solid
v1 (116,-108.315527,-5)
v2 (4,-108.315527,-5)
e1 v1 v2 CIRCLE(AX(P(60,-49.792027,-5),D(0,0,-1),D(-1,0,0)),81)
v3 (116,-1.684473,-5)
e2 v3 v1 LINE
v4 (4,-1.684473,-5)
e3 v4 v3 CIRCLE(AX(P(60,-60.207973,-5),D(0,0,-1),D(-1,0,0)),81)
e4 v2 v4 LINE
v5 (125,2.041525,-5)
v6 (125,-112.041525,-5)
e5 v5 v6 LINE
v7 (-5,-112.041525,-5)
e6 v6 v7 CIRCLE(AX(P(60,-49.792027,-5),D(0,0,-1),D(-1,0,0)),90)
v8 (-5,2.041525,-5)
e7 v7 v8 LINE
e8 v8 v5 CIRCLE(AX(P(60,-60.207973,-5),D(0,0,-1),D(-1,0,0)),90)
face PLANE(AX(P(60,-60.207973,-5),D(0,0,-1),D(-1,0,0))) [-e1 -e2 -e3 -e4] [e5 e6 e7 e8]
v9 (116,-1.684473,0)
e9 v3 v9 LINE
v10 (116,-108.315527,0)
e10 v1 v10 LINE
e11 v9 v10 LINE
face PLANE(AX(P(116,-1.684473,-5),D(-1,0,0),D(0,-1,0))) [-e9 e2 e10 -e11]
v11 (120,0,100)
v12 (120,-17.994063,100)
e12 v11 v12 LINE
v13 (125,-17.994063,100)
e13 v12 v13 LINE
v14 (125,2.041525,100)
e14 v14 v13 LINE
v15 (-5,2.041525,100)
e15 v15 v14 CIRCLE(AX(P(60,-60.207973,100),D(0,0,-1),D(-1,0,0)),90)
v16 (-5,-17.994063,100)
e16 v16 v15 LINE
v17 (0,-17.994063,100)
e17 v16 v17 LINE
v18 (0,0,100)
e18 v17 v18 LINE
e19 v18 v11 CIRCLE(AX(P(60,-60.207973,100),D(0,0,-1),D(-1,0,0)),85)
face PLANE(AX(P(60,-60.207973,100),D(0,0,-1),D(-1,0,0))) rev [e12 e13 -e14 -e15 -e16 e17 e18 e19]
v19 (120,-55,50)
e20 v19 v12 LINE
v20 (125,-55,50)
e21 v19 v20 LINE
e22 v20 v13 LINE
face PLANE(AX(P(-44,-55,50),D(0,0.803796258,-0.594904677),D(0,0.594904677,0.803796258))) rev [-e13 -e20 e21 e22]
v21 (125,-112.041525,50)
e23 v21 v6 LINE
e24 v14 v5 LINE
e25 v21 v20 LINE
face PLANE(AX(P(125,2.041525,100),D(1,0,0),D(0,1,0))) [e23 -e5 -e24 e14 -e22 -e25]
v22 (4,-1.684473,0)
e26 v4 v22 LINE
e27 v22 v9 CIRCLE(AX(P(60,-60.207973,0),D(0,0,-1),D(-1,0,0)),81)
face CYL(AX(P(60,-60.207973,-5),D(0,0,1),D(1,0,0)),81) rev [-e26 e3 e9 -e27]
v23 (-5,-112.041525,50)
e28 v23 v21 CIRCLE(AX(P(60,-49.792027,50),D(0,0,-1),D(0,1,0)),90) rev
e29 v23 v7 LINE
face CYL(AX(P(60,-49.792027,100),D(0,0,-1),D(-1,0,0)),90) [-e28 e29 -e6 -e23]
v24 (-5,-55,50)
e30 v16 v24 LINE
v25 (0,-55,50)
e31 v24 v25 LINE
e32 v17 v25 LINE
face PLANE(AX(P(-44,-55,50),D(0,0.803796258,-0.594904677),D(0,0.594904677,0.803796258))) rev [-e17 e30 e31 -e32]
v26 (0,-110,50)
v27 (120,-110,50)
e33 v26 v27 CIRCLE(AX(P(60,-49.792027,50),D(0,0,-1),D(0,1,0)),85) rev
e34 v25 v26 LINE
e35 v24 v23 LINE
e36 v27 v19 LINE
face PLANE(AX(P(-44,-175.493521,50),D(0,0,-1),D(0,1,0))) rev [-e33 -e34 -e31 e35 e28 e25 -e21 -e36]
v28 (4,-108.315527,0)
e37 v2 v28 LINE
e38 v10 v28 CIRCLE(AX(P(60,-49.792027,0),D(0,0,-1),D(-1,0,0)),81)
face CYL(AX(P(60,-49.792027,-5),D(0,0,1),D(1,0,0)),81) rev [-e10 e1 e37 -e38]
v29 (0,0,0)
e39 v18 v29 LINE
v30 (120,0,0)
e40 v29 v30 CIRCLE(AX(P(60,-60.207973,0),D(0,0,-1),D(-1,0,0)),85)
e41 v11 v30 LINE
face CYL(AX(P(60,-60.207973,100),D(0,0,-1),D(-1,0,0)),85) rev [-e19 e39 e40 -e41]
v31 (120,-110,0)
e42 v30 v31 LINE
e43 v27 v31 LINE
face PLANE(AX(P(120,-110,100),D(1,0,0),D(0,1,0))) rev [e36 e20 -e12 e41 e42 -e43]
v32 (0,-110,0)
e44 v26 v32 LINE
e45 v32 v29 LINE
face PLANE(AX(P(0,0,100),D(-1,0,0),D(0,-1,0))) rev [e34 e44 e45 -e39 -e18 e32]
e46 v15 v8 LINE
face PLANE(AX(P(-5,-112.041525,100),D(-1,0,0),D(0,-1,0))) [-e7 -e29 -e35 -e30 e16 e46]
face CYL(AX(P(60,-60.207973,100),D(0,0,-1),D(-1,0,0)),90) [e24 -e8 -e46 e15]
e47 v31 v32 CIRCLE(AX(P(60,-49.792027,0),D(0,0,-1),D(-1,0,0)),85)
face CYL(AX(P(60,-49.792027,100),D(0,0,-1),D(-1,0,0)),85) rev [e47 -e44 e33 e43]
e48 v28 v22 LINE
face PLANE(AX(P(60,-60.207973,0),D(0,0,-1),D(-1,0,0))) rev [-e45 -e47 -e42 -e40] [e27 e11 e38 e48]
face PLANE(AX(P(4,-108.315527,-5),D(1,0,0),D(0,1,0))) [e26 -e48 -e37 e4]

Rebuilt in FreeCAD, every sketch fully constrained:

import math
import FreeCAD as App
import Part
import Sketcher


def add_polygon(sketch, points):
    """Adds a closed chain of lines whose ends are joined by coincident constraints."""
    first, n = sketch.GeometryCount, len(points)
    for a, b in zip(points, points[1:] + points[:1]):
        sketch.addGeometry(Part.LineSegment(App.Vector(*a, 0), App.Vector(*b, 0)), False)
    for i in range(n):
        sketch.addConstraint(Sketcher.Constraint("Coincident", first + i, 2, first + (i + 1) % n, 1))

doc = App.newDocument("Part")
params = doc.addObject("Spreadsheet::Sheet", "Params")
for row, (alias, value) in enumerate([
    ("sketch1_radius", "85 mm"),
    ("sketch1_height", "110 mm"),
    ("sketch1_height2", "63.75 mm"),
    ("pad1_length", "50 mm"),
    ("sketch2_radius", "90 mm"),
    ("sketch2_radius2", "85 mm"),
    ("sketch2_height", "110 mm"),
    ("pad2_length", "100 mm"),
    ("sketch3_radius", "85 mm"),
    ("sketch3_height", "110 mm"),
    ("pocket1_length", "100 mm"),
    ("sketch4_height", "50 mm"),
    ("pocket2_length", "169 mm"),
    ("sketch5_radius", "90 mm"),
    ("sketch5_radius2", "81 mm"),
    ("pad3_length", "5 mm"),
], start=1):
    params.set(f"A{row}", alias)
    params.set(f"B{row}", "=" + value)
    params.setAlias(f"B{row}", alias)

body = doc.addObject("PartDesign::Body", "Body")

# Sketch on XY plane
sketch1 = doc.addObject("Sketcher::SketchObject", "Sketch")
body.addObject(sketch1)
sketch1.AttachmentSupport = (doc.XY_Plane, [""])
sketch1.MapMode = "FlatFace"
sketch1.addGeometry(Part.LineSegment(App.Vector(0, 0, 0), App.Vector(0, -110, 0)), False)  # 0
sketch1.addGeometry(Part.ArcOfCircle(Part.Circle(App.Vector(60, -49.792027, 0), App.Vector(0, 0, 1), 85), math.radians(-134.900872), math.radians(-45.099128)), False)  # 1
sketch1.addGeometry(Part.LineSegment(App.Vector(120, -110, 0), App.Vector(120, 0, 0)), False)  # 2
sketch1.addGeometry(Part.ArcOfCircle(Part.Circle(App.Vector(60, -60.207973, 0), App.Vector(0, 0, 1), 85), math.radians(45.099128), math.radians(134.900872)), False)  # 3
add_polygon(sketch1, [(107.8125, -86.875), (12.1875, -86.875), (12.1875, -23.125), (107.8125, -23.125)])  # lines 4-7
sketch1.addConstraint(Sketcher.Constraint("Coincident", 0, 2, 1, 1))
sketch1.addConstraint(Sketcher.Constraint("Coincident", 1, 2, 2, 1))
sketch1.addConstraint(Sketcher.Constraint("Coincident", 2, 2, 3, 1))
sketch1.addConstraint(Sketcher.Constraint("Coincident", 3, 2, 0, 1))
sketch1.addConstraint(Sketcher.Constraint("Vertical", 0))
sketch1.addConstraint(Sketcher.Constraint("Vertical", 2))
sketch1.addConstraint(Sketcher.Constraint("Horizontal", 4))
sketch1.addConstraint(Sketcher.Constraint("Vertical", 5))
sketch1.addConstraint(Sketcher.Constraint("Horizontal", 6))
sketch1.addConstraint(Sketcher.Constraint("Vertical", 7))
sketch1.addConstraint(Sketcher.Constraint("Coincident", 3, 2, -1, 1))
sketch1.addConstraint(Sketcher.Constraint("Equal", 1, 3))
sketch1.addConstraint(Sketcher.Constraint("PointOnObject", 2, 2, -1))
sketch1.addConstraint(Sketcher.Constraint("Horizontal", 0, 2, 1, 2))
sketch1.addConstraint(Sketcher.Constraint("Radius", 1, 85.0))
sketch1.addConstraint(Sketcher.Constraint("DistanceY", 0, 2, 0, 1, 110.0))
sketch1.addConstraint(Sketcher.Constraint("DistanceX", -1, 1, 1, 3, 60.0))
sketch1.addConstraint(Sketcher.Constraint("DistanceY", 5, 1, 5, 2, 63.75))
sketch1.addConstraint(Sketcher.Constraint("DistanceX", 4, 2, 4, 1, 95.625))
sketch1.addConstraint(Sketcher.Constraint("DistanceY", 4, 2, -1, 1, 86.875))
sketch1.addConstraint(Sketcher.Constraint("DistanceX", -1, 1, 4, 2, 12.1875))
sketch1.setExpression("Constraints[18]", "Params.sketch1_radius")
sketch1.setExpression("Constraints[19]", "Params.sketch1_height")
sketch1.setExpression("Constraints[21]", "Params.sketch1_height2")
pad1 = doc.addObject("PartDesign::Pad", "Pad")
body.addObject(pad1)
pad1.Profile = sketch1
pad1.setExpression("Length", "Params.pad1_length")

# Sketch on XY plane
sketch2 = doc.addObject("Sketcher::SketchObject", "Sketch001")
body.addObject(sketch2)
sketch2.AttachmentSupport = (doc.XY_Plane, [""])
sketch2.MapMode = "FlatFace"
sketch2.addGeometry(Part.LineSegment(App.Vector(125, 2.041525, 0), App.Vector(125, -112.041525, 0)), False)
sketch2.addGeometry(Part.ArcOfCircle(Part.Circle(App.Vector(60, -49.792027, 0), App.Vector(0, 0, 1), 90), math.radians(-136.238257), math.radians(-43.761743)), False)
sketch2.addGeometry(Part.LineSegment(App.Vector(-5, -112.041525, 0), App.Vector(-5, 2.041525, 0)), False)
sketch2.addGeometry(Part.ArcOfCircle(Part.Circle(App.Vector(60, -60.207973, 0), App.Vector(0, 0, 1), 90), math.radians(43.761743), math.radians(136.238257)), False)
sketch2.addGeometry(Part.ArcOfCircle(Part.Circle(App.Vector(60, -60.207973, 0), App.Vector(0, 0, 1), 85), math.radians(45.099128), math.radians(134.900872)), False)
sketch2.addGeometry(Part.LineSegment(App.Vector(0, 0, 0), App.Vector(0, -110, 0)), False)
sketch2.addGeometry(Part.ArcOfCircle(Part.Circle(App.Vector(60, -49.792027, 0), App.Vector(0, 0, 1), 85), math.radians(-134.900872), math.radians(-45.099128)), False)
sketch2.addGeometry(Part.LineSegment(App.Vector(120, -110, 0), App.Vector(120, 0, 0)), False)
sketch2.addConstraint(Sketcher.Constraint("Coincident", 0, 2, 1, 2))
sketch2.addConstraint(Sketcher.Constraint("Coincident", 1, 1, 2, 1))
sketch2.addConstraint(Sketcher.Constraint("Coincident", 2, 2, 3, 2))
sketch2.addConstraint(Sketcher.Constraint("Coincident", 3, 1, 0, 1))
sketch2.addConstraint(Sketcher.Constraint("Coincident", 4, 2, 5, 1))
sketch2.addConstraint(Sketcher.Constraint("Coincident", 5, 2, 6, 1))
sketch2.addConstraint(Sketcher.Constraint("Coincident", 6, 2, 7, 1))
sketch2.addConstraint(Sketcher.Constraint("Coincident", 7, 2, 4, 1))
sketch2.addConstraint(Sketcher.Constraint("Vertical", 0))
sketch2.addConstraint(Sketcher.Constraint("Vertical", 2))
sketch2.addConstraint(Sketcher.Constraint("Vertical", 5))
sketch2.addConstraint(Sketcher.Constraint("Vertical", 7))
sketch2.addConstraint(Sketcher.Constraint("Coincident", 4, 2, -1, 1))
sketch2.addConstraint(Sketcher.Constraint("Coincident", 4, 3, 3, 3))
sketch2.addConstraint(Sketcher.Constraint("Coincident", 6, 3, 1, 3))
sketch2.addConstraint(Sketcher.Constraint("Equal", 1, 3))
sketch2.addConstraint(Sketcher.Constraint("Equal", 4, 6))
sketch2.addConstraint(Sketcher.Constraint("PointOnObject", 7, 2, -1))
sketch2.addConstraint(Sketcher.Constraint("Horizontal", 0, 2, 1, 1))
sketch2.addConstraint(Sketcher.Constraint("Horizontal", 2, 2, 3, 1))
sketch2.addConstraint(Sketcher.Constraint("Radius", 1, 90.0))
sketch2.addConstraint(Sketcher.Constraint("Radius", 4, 85.0))
sketch2.addConstraint(Sketcher.Constraint("DistanceY", 5, 2, 5, 1, 110.0))
sketch2.addConstraint(Sketcher.Constraint("DistanceX", -1, 1, 1, 3, 60.0))
sketch2.addConstraint(Sketcher.Constraint("DistanceX", -1, 1, 0, 2, 125.0))
sketch2.setExpression("Constraints[20]", "Params.sketch2_radius")
sketch2.setExpression("Constraints[21]", "Params.sketch2_radius2")
sketch2.setExpression("Constraints[22]", "Params.sketch2_height")
pad2 = doc.addObject("PartDesign::Pad", "Pad001")
body.addObject(pad2)
pad2.Profile = sketch2
pad2.setExpression("Length", "Params.pad2_length")

# Sketch on XY plane
sketch3 = doc.addObject("Sketcher::SketchObject", "Sketch002")
body.addObject(sketch3)
sketch3.AttachmentSupport = (doc.XY_Plane, [""])
sketch3.MapMode = "FlatFace"
sketch3.AttachmentOffset = App.Placement(App.Vector(0, 0, 50), App.Rotation())
sketch3.addGeometry(Part.LineSegment(App.Vector(0, 0, 0), App.Vector(0, -110, 0)), False)
sketch3.addGeometry(Part.ArcOfCircle(Part.Circle(App.Vector(60, -49.792027, 0), App.Vector(0, 0, 1), 85), math.radians(-134.900872), math.radians(-45.099128)), False)
sketch3.addGeometry(Part.LineSegment(App.Vector(120, -110, 0), App.Vector(120, 0, 0)), False)
sketch3.addGeometry(Part.ArcOfCircle(Part.Circle(App.Vector(60, -60.207973, 0), App.Vector(0, 0, 1), 85), math.radians(45.099128), math.radians(134.900872)), False)
sketch3.addConstraint(Sketcher.Constraint("Coincident", 0, 2, 1, 1))
sketch3.addConstraint(Sketcher.Constraint("Coincident", 1, 2, 2, 1))
sketch3.addConstraint(Sketcher.Constraint("Coincident", 2, 2, 3, 1))
sketch3.addConstraint(Sketcher.Constraint("Coincident", 3, 2, 0, 1))
sketch3.addConstraint(Sketcher.Constraint("Vertical", 0))
sketch3.addConstraint(Sketcher.Constraint("Vertical", 2))
sketch3.addConstraint(Sketcher.Constraint("Coincident", 3, 2, -1, 1))
sketch3.addConstraint(Sketcher.Constraint("Equal", 1, 3))
sketch3.addConstraint(Sketcher.Constraint("PointOnObject", 2, 2, -1))
sketch3.addConstraint(Sketcher.Constraint("Horizontal", 0, 2, 1, 2))
sketch3.addConstraint(Sketcher.Constraint("Radius", 1, 85.0))
sketch3.addConstraint(Sketcher.Constraint("DistanceY", 0, 2, 0, 1, 110.0))
sketch3.addConstraint(Sketcher.Constraint("DistanceX", -1, 1, 1, 3, 60.0))
sketch3.setExpression("Constraints[10]", "Params.sketch3_radius")
sketch3.setExpression("Constraints[11]", "Params.sketch3_height")
pocket1 = doc.addObject("PartDesign::Pocket", "Pocket")
body.addObject(pocket1)
pocket1.Profile = sketch3
pocket1.setExpression("Length", "Params.pocket1_length")

# Sketch on YZ plane
sketch4 = doc.addObject("Sketcher::SketchObject", "Sketch003")
body.addObject(sketch4)
sketch4.AttachmentSupport = (doc.YZ_Plane, [""])
sketch4.MapMode = "FlatFace"
sketch4.AttachmentOffset = App.Placement(App.Vector(0, 0, 125), App.Rotation())
add_polygon(sketch4, [(-55, 50), (-17.994063, 100), (-175.493521, 100), (-175.493521, 50)])  # lines 0-3
sketch4.addConstraint(Sketcher.Constraint("Horizontal", 1))
sketch4.addConstraint(Sketcher.Constraint("Vertical", 2))
sketch4.addConstraint(Sketcher.Constraint("Horizontal", 3))
sketch4.addConstraint(Sketcher.Constraint("DistanceY", 2, 2, 2, 1, 50.0))
sketch4.addConstraint(Sketcher.Constraint("DistanceY", -1, 1, 0, 2, 100.0))
sketch4.addConstraint(Sketcher.Constraint("DistanceX", 3, 2, -1, 1, 55.0))
sketch4.addConstraint(Sketcher.Constraint("DistanceX", 1, 2, 1, 1, 157.499459))
sketch4.addConstraint(Sketcher.Constraint("DistanceX", 3, 1, 3, 2, 120.493521))
sketch4.setExpression("Constraints[7]", "Params.sketch4_height")
pocket2 = doc.addObject("PartDesign::Pocket", "Pocket001")
body.addObject(pocket2)
pocket2.Profile = sketch4
pocket2.setExpression("Length", "Params.pocket2_length")

# Sketch on XY plane
sketch5 = doc.addObject("Sketcher::SketchObject", "Sketch004")
body.addObject(sketch5)
sketch5.AttachmentSupport = (doc.XY_Plane, [""])
sketch5.MapMode = "FlatFace"
sketch5.addGeometry(Part.LineSegment(App.Vector(125, 2.041525, 0), App.Vector(125, -112.041525, 0)), False)
sketch5.addGeometry(Part.ArcOfCircle(Part.Circle(App.Vector(60, -49.792027, 0), App.Vector(0, 0, 1), 90), math.radians(-136.238257), math.radians(-43.761743)), False)
sketch5.addGeometry(Part.LineSegment(App.Vector(-5, -112.041525, 0), App.Vector(-5, 2.041525, 0)), False)
sketch5.addGeometry(Part.ArcOfCircle(Part.Circle(App.Vector(60, -60.207973, 0), App.Vector(0, 0, 1), 90), math.radians(43.761743), math.radians(136.238257)), False)
sketch5.addGeometry(Part.LineSegment(App.Vector(116, -108.315527, 0), App.Vector(116, -1.684473, 0)), False)
sketch5.addGeometry(Part.ArcOfCircle(Part.Circle(App.Vector(60, -60.207973, 0), App.Vector(0, 0, 1), 81), math.radians(46.262295), math.radians(133.737705)), False)
sketch5.addGeometry(Part.LineSegment(App.Vector(4, -1.684473, 0), App.Vector(4, -108.315527, 0)), False)
sketch5.addGeometry(Part.ArcOfCircle(Part.Circle(App.Vector(60, -49.792027, 0), App.Vector(0, 0, 1), 81), math.radians(-133.737705), math.radians(-46.262295)), False)
sketch5.addConstraint(Sketcher.Constraint("Coincident", 0, 2, 1, 2))
sketch5.addConstraint(Sketcher.Constraint("Coincident", 1, 1, 2, 1))
sketch5.addConstraint(Sketcher.Constraint("Coincident", 2, 2, 3, 2))
sketch5.addConstraint(Sketcher.Constraint("Coincident", 3, 1, 0, 1))
sketch5.addConstraint(Sketcher.Constraint("Coincident", 4, 2, 5, 1))
sketch5.addConstraint(Sketcher.Constraint("Coincident", 5, 2, 6, 1))
sketch5.addConstraint(Sketcher.Constraint("Coincident", 6, 2, 7, 1))
sketch5.addConstraint(Sketcher.Constraint("Coincident", 7, 2, 4, 1))
sketch5.addConstraint(Sketcher.Constraint("Vertical", 0))
sketch5.addConstraint(Sketcher.Constraint("Vertical", 2))
sketch5.addConstraint(Sketcher.Constraint("Vertical", 4))
sketch5.addConstraint(Sketcher.Constraint("Vertical", 6))
sketch5.addConstraint(Sketcher.Constraint("Coincident", 5, 3, 3, 3))
sketch5.addConstraint(Sketcher.Constraint("Coincident", 7, 3, 1, 3))
sketch5.addConstraint(Sketcher.Constraint("Equal", 1, 3))
sketch5.addConstraint(Sketcher.Constraint("Equal", 5, 7))
sketch5.addConstraint(Sketcher.Constraint("Horizontal", 0, 2, 1, 1))
sketch5.addConstraint(Sketcher.Constraint("Horizontal", 2, 2, 3, 1))
sketch5.addConstraint(Sketcher.Constraint("Horizontal", 4, 2, 5, 2))
sketch5.addConstraint(Sketcher.Constraint("Radius", 1, 90.0))
sketch5.addConstraint(Sketcher.Constraint("Radius", 5, 81.0))
sketch5.addConstraint(Sketcher.Constraint("DistanceX", -1, 1, 1, 3, 60.0))
sketch5.addConstraint(Sketcher.Constraint("DistanceX", -1, 1, 0, 2, 125.0))
sketch5.addConstraint(Sketcher.Constraint("DistanceX", -1, 1, 4, 2, 116.0))
sketch5.addConstraint(Sketcher.Constraint("DistanceY", 0, 2, 0, 1, 114.08305))
sketch5.addConstraint(Sketcher.Constraint("DistanceY", 1, 3, -1, 1, 49.792027))
sketch5.setExpression("Constraints[19]", "Params.sketch5_radius")
sketch5.setExpression("Constraints[20]", "Params.sketch5_radius2")
pad3 = doc.addObject("PartDesign::Pad", "Pad002")
body.addObject(pad3)
pad3.Profile = sketch5
pad3.setExpression("Length", "Params.pad3_length")
pad3.Reversed = True

doc.recompute()
